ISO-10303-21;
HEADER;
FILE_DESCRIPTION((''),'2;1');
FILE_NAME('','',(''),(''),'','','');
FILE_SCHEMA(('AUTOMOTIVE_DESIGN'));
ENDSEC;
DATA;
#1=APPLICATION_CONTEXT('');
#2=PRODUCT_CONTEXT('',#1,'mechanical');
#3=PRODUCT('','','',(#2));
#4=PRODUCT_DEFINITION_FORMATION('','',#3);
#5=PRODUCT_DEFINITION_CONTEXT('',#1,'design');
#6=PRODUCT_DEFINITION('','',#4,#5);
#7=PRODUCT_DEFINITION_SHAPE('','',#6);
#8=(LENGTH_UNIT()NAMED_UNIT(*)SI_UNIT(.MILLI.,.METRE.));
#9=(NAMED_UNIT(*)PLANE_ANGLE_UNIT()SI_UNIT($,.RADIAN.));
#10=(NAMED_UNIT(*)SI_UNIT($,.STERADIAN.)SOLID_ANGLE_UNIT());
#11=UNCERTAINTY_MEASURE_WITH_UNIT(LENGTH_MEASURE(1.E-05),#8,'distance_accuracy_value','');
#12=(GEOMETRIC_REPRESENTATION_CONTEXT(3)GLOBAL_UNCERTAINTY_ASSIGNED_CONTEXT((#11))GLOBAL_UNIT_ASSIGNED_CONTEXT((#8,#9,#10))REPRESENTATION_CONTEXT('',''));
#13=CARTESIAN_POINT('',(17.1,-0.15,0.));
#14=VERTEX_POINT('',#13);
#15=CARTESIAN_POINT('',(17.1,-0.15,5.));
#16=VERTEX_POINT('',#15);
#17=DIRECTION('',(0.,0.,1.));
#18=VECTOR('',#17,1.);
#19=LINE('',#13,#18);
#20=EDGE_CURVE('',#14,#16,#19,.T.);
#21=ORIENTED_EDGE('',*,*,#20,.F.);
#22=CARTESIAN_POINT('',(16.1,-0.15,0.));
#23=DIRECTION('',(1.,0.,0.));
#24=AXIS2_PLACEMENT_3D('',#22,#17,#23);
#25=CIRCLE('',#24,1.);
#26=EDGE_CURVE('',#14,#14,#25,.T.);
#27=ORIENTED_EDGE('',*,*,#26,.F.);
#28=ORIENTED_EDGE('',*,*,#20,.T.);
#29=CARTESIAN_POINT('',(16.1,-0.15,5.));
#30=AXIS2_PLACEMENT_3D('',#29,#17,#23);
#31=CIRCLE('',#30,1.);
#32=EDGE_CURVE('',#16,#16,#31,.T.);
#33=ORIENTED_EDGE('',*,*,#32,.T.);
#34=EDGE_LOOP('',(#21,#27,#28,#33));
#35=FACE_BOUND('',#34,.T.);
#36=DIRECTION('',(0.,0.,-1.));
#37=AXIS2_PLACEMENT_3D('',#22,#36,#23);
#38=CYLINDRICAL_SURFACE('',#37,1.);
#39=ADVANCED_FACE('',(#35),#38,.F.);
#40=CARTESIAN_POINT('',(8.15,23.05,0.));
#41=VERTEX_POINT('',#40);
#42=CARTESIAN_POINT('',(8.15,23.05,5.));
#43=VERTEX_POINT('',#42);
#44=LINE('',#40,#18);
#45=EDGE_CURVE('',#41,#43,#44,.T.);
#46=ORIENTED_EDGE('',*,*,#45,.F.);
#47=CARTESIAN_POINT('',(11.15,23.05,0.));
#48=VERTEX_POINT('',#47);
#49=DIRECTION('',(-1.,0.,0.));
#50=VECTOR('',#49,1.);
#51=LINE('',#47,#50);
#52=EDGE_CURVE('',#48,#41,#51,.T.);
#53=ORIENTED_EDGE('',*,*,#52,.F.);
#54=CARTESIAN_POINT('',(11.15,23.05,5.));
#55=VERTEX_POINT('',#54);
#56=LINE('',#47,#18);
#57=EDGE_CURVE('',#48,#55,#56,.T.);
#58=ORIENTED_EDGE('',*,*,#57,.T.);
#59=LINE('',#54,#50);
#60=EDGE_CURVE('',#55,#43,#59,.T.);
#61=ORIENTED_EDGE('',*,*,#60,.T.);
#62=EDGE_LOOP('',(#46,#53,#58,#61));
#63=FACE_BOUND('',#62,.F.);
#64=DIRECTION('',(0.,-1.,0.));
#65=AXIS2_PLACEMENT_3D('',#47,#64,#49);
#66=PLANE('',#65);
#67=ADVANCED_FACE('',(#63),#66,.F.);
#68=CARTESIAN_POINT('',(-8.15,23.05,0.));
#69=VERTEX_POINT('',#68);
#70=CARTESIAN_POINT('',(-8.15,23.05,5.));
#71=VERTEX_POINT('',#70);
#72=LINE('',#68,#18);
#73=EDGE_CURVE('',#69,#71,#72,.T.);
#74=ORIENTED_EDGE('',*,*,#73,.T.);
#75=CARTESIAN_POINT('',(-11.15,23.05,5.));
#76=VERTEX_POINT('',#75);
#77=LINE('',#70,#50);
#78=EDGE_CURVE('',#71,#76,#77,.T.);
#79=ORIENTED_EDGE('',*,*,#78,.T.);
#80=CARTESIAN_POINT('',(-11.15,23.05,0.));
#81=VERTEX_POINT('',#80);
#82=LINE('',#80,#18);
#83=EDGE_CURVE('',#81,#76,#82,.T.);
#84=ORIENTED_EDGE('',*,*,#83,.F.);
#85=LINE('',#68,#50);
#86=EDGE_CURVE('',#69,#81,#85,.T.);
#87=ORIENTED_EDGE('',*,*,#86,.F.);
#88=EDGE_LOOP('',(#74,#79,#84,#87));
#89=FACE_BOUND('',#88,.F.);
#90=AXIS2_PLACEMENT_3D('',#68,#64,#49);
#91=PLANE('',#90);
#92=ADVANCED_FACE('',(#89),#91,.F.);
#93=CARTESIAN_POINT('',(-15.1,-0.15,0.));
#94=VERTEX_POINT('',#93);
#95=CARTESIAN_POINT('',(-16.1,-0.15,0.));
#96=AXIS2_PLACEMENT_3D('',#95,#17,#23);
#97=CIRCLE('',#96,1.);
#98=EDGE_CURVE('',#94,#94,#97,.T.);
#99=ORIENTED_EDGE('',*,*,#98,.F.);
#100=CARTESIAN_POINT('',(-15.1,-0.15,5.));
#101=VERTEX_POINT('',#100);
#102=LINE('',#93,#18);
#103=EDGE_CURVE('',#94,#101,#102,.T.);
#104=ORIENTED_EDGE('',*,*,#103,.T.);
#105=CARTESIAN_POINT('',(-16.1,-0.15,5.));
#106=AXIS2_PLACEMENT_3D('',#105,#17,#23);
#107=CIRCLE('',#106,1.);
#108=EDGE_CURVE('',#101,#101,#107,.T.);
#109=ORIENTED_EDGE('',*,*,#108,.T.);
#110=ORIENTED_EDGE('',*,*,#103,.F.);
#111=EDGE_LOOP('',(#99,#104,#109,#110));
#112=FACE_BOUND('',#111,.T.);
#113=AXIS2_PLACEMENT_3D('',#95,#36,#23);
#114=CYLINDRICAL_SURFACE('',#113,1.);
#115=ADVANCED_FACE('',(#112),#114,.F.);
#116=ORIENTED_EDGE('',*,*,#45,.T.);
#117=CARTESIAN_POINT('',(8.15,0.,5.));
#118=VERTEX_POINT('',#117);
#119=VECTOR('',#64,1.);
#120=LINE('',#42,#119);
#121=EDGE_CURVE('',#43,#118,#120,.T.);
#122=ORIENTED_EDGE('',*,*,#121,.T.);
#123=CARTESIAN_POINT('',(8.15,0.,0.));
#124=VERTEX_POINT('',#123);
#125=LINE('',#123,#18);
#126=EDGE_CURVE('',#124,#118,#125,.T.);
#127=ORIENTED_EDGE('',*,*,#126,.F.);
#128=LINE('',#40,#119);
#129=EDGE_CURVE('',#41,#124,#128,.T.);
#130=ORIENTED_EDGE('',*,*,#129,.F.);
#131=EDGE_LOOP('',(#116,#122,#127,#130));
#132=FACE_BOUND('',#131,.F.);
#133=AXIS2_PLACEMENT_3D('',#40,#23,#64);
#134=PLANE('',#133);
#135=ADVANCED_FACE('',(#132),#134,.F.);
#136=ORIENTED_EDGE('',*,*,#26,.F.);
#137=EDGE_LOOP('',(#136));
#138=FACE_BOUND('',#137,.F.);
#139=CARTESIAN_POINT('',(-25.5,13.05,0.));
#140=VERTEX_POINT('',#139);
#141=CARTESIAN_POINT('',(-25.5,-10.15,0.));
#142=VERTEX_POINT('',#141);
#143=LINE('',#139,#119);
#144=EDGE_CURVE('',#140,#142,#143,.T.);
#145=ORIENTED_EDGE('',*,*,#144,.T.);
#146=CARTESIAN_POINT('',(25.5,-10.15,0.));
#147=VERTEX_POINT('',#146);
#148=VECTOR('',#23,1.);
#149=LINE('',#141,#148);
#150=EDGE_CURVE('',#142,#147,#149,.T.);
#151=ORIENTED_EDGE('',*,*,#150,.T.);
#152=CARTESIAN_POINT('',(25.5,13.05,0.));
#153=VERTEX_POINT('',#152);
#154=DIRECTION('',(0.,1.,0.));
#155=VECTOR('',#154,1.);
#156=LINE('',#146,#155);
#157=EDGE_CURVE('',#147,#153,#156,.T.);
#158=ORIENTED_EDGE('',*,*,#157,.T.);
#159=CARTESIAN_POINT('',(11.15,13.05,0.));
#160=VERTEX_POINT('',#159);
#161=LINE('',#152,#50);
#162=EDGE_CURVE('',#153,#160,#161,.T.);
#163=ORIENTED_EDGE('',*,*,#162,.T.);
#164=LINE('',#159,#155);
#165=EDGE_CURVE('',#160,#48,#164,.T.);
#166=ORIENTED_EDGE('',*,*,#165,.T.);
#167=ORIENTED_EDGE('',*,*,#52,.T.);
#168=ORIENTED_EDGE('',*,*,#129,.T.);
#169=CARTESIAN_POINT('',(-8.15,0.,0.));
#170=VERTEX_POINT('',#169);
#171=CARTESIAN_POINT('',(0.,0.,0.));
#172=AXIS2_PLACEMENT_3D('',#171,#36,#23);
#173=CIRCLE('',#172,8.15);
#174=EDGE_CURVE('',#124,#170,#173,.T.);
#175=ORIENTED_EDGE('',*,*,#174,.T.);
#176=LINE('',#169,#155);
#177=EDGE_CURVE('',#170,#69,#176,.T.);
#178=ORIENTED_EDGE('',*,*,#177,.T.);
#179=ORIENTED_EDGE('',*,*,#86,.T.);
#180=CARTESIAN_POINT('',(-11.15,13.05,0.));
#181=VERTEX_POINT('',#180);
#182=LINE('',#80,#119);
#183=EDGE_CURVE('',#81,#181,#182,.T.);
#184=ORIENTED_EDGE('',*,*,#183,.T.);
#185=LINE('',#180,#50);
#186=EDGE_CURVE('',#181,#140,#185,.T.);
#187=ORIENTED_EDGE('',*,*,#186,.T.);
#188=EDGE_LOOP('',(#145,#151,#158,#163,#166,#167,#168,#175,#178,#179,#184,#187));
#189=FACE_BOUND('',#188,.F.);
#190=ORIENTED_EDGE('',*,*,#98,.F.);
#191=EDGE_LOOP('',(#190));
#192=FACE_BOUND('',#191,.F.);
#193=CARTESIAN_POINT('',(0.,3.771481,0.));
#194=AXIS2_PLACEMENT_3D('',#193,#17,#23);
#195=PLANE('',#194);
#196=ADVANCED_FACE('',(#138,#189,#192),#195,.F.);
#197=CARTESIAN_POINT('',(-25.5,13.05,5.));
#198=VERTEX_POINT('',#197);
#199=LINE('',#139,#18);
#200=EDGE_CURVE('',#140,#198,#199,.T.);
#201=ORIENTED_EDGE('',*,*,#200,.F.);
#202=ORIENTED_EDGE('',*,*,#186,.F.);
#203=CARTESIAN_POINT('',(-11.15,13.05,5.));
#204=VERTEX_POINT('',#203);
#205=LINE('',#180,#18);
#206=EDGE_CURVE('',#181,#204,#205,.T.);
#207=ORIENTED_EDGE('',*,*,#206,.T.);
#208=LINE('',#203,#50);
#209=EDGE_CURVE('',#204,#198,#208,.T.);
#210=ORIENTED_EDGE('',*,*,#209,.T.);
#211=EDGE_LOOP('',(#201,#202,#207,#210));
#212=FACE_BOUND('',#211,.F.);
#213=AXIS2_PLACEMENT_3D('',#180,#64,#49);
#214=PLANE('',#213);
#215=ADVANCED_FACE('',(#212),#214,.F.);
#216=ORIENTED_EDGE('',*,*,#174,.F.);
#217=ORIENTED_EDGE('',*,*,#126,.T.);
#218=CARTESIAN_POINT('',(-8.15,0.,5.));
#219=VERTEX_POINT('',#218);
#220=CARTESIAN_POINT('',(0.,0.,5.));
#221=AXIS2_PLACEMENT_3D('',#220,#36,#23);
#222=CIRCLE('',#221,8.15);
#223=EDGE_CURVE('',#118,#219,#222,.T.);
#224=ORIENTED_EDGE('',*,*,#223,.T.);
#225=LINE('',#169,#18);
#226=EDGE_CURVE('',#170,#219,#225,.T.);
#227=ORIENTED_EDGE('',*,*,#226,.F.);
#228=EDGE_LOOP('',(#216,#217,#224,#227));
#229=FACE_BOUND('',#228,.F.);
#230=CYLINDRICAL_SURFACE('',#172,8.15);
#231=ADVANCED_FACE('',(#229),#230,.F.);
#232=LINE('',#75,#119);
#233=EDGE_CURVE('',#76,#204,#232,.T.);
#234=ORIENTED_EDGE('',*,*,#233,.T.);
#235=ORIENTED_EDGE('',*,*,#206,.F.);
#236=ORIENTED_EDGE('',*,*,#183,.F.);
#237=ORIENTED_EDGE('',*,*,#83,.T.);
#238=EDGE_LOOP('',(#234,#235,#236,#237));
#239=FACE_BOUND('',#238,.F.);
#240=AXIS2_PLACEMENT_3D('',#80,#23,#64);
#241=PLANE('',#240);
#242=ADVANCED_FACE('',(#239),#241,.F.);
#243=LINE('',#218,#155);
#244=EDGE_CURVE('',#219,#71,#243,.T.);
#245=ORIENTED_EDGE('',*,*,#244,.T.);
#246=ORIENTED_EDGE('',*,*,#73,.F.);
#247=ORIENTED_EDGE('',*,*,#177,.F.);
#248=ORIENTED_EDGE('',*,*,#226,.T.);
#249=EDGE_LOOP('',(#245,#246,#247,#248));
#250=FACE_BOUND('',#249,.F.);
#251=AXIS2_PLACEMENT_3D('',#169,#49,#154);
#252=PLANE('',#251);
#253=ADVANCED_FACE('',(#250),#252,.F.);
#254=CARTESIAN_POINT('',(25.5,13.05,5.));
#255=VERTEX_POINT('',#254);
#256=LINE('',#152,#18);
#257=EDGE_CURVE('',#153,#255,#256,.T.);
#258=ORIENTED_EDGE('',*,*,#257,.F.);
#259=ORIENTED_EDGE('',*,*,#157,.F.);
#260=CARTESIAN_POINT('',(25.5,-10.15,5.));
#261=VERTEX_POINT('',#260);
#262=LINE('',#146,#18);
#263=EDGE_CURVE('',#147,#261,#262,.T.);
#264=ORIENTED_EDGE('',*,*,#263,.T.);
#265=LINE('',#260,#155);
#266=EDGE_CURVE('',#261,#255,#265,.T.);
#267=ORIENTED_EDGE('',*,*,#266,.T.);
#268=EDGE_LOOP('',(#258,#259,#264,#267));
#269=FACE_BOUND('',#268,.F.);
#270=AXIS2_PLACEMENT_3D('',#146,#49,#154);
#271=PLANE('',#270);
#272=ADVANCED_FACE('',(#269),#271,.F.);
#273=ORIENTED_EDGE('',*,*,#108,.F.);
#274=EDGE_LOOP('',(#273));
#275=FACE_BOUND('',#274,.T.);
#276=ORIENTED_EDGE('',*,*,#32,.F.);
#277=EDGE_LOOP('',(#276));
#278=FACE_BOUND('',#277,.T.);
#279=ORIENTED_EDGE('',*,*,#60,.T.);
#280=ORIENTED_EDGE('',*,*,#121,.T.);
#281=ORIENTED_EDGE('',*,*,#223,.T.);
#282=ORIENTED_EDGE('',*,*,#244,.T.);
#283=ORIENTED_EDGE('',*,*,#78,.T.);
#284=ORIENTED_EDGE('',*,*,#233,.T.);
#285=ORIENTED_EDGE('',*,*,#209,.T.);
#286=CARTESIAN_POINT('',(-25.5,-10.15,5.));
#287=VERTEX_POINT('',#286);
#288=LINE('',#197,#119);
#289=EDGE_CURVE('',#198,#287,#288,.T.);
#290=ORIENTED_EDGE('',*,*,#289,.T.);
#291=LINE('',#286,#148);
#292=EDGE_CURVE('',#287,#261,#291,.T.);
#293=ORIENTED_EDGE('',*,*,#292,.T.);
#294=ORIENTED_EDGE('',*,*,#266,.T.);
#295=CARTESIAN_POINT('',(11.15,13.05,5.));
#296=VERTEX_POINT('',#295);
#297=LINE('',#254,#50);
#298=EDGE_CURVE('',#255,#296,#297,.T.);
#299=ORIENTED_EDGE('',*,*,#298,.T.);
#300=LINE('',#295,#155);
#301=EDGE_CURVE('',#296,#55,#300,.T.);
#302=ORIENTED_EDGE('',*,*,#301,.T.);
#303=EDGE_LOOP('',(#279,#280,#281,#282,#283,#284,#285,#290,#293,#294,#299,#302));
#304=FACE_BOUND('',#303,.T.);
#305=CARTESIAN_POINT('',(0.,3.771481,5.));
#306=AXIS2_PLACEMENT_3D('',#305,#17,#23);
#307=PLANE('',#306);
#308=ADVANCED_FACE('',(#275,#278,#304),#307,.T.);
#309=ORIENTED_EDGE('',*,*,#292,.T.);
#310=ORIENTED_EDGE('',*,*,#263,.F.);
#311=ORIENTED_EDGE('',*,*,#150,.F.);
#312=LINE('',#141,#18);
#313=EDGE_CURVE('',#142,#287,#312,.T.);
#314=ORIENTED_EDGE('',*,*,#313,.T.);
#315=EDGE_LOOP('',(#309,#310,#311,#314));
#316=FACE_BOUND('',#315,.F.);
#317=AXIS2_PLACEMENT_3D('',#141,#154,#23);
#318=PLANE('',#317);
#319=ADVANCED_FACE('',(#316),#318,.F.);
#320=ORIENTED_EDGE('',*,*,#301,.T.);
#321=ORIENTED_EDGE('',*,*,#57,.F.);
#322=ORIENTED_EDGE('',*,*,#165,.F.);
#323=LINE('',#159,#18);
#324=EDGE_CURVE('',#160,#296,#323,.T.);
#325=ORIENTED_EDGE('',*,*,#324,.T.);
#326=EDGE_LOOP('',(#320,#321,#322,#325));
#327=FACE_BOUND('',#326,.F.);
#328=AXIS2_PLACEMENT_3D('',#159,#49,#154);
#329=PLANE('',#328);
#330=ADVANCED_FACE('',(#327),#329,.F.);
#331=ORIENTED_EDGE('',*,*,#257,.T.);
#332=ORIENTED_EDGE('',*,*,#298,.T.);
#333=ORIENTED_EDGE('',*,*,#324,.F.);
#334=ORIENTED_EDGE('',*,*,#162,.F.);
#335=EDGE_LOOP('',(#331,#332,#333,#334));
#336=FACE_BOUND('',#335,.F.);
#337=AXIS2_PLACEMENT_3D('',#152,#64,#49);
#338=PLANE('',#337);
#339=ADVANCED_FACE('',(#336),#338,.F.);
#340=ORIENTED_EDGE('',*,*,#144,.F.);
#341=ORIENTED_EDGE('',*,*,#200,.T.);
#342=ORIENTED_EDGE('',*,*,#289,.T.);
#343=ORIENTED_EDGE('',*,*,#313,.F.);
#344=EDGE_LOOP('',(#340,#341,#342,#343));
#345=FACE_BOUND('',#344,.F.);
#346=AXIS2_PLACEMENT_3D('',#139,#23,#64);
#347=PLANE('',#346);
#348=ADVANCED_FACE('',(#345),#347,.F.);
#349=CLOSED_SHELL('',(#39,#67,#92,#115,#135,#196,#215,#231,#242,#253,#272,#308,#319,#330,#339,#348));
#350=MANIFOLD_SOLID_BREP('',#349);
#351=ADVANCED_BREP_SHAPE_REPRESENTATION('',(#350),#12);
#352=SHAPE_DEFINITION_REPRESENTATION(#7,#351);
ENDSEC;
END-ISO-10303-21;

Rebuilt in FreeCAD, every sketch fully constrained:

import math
import FreeCAD as App
import Part
import Sketcher
from FreeCAD import Vector
Q = App.Units.Quantity

doc = App.newDocument("Part")
body = doc.addObject("PartDesign::Body", "Body")

sketch1 = doc.addObject("Sketcher::SketchObject", "Sketch")
body.addObject(sketch1)
sketch1.AttachmentSupport = (doc.XY_Plane, [""])
sketch1.MapMode = "FlatFace"
sketch1.addGeometry([
    Part.LineSegment(Vector(-11.2, 13.1, 0), Vector(-25.5, 13.1, 0)),
    Part.LineSegment(Vector(-25.5, 13.1, 0), Vector(-25.5, -10.2, 0)),
    Part.LineSegment(Vector(-25.5, -10.2, 0), Vector(25.5, -10.2, 0)),
    Part.LineSegment(Vector(25.5, -10.2, 0), Vector(25.5, 13.1, 0)),
    Part.LineSegment(Vector(25.5, 13.1, 0), Vector(11.2, 13.1, 0)),
    Part.LineSegment(Vector(11.2, 13.1, 0), Vector(11.2, 23.1, 0)),
    Part.LineSegment(Vector(11.2, 23.1, 0), Vector(8.2, 23.1, 0)),
    Part.LineSegment(Vector(8.2, 23.1, 0), Vector(8.2, 0, 0)),
    Part.ArcOfCircle(Part.Circle(Vector(0, 0, 0), Vector(0, 0, 1), 8.2), math.radians(180), math.radians(360)),
    Part.LineSegment(Vector(-8.2, 0, 0), Vector(-8.2, 23.1, 0)),
    Part.LineSegment(Vector(-8.2, 23.1, 0), Vector(-11.2, 23.1, 0)),
    Part.LineSegment(Vector(-11.2, 23.1, 0), Vector(-11.2, 13.1, 0)),
    Part.Circle(Vector(-16.1, -0.1, 0), Vector(0, 0, 1), 1),
    Part.Circle(Vector(16.1, -0.1, 0), Vector(0, 0, 1), 1),
], False)
sketch1.addConstraint([
    Sketcher.Constraint("Coincident", 0, 2, 1, 1),
    Sketcher.Constraint("Coincident", 1, 2, 2, 1),
    Sketcher.Constraint("Coincident", 2, 2, 3, 1),
    Sketcher.Constraint("Coincident", 3, 2, 4, 1),
    Sketcher.Constraint("Coincident", 4, 2, 5, 1),
    Sketcher.Constraint("Coincident", 5, 2, 6, 1),
    Sketcher.Constraint("Coincident", 6, 2, 7, 1),
    Sketcher.Constraint("Tangent", 7, 2, 8, 2),
    Sketcher.Constraint("Tangent", 8, 1, 9, 1),
    Sketcher.Constraint("Coincident", 9, 2, 10, 1),
    Sketcher.Constraint("Coincident", 10, 2, 11, 1),
    Sketcher.Constraint("Coincident", 11, 2, 0, 1),
    Sketcher.Constraint("Horizontal", 0),
    Sketcher.Constraint("Vertical", 1),
    Sketcher.Constraint("Horizontal", 2),
    Sketcher.Constraint("Vertical", 3),
    Sketcher.Constraint("Horizontal", 4),
    Sketcher.Constraint("Vertical", 5),
    Sketcher.Constraint("Horizontal", 6),
    Sketcher.Constraint("Vertical", 7),
    Sketcher.Constraint("Vertical", 9),
    Sketcher.Constraint("Horizontal", 10),
    Sketcher.Constraint("Vertical", 11),
    Sketcher.Constraint("Coincident", 8, 3, -1, 1),
    Sketcher.Constraint("Equal", 12, 13),
    Sketcher.Constraint("Symmetric", 12, 3, 13, 3, -2),
    Sketcher.Constraint("Symmetric", 0, 2, 3, 2, -2),
    Sketcher.Constraint("Symmetric", 5, 2, 10, 2, -2),
    Sketcher.Constraint("Diameter", 12, Q("2 mm")),
    Sketcher.Constraint("DistanceX", 2, 1, 2, 2, Q("51 mm")),
    Sketcher.Constraint("DistanceX", 6, 2, 6, 1, Q("3 mm")),
    Sketcher.Constraint("DistanceY", 5, 1, 5, 2, Q("10 mm")),
    Sketcher.Constraint("Radius", 8, Q("8.15 mm")),
    Sketcher.Constraint("DistanceY", 1, 2, 1, 1, Q("23.2 mm")),
    Sketcher.Constraint("DistanceY", 1, 2, 12, 3, Q("10 mm")),
    Sketcher.Constraint("DistanceY", 7, 2, 7, 1, Q("23.05 mm")),
    Sketcher.Constraint("DistanceX", 12, 3, -1, 1, Q("16.1 mm")),
])
pad1 = doc.addObject("PartDesign::Pad", "Pad")
body.addObject(pad1)
pad1.Profile = sketch1
pad1.Length = 5

doc.recompute()
